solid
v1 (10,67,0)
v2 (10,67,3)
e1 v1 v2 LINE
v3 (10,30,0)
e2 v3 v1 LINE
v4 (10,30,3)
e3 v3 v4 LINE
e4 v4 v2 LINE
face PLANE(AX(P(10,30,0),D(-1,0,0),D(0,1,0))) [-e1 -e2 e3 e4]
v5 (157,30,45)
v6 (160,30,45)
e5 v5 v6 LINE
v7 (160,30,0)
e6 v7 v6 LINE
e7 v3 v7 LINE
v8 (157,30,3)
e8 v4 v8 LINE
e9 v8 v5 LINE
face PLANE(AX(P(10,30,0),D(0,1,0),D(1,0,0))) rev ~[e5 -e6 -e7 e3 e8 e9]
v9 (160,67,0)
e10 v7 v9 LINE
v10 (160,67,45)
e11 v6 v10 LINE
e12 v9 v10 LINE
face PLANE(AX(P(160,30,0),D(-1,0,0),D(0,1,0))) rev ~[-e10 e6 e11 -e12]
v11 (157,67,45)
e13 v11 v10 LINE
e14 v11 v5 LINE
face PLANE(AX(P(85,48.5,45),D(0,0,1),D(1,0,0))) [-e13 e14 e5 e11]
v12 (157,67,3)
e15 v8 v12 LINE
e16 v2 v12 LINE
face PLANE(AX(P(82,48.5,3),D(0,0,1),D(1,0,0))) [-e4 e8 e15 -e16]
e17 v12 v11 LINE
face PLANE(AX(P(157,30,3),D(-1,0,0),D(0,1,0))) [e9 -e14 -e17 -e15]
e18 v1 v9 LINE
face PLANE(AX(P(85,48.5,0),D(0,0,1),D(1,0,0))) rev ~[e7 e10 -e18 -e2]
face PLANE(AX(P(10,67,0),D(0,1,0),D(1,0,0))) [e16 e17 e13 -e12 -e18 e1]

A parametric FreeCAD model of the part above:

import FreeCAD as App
import Part
import Sketcher

V = App.Vector
Q = App.Units.Quantity

doc = App.newDocument("Part")
params = doc.addObject("Spreadsheet::Sheet", "Params")
for row, (alias, value) in enumerate([
    ("sketch1_width", "150 mm"),
    ("sketch1_height", "37 mm"),
    ("pad1_length", "45 mm"),
    ("sketch2_width", "150 mm"),
    ("sketch2_height", "37 mm"),
    ("pad2_length", "45 mm"),
], start=1):
    params.set(f"A{row}", alias)
    params.set(f"B{row}", "=" + value)
    params.setAlias(f"B{row}", alias)

body = doc.addObject("PartDesign::Body", "Body")

# Sketch on XY plane
sketch1 = body.newObject("Sketcher::SketchObject", "Sketch")
sketch1.AttachmentSupport = (doc.getObject("XY_Plane"), [""])
sketch1.MapMode = "FlatFace"
sketch1.AttachmentOffset = App.Placement(V(0, 0, 3), App.Rotation())
sketch1.addGeometry(Part.LineSegment(V(-3, 37, 0), V(-3, 0, 0)), False)
sketch1.addGeometry(Part.LineSegment(V(-3, 0, 0), V(147, 0, 0)), False)
sketch1.addGeometry(Part.LineSegment(V(147, 0, 0), V(147, 37, 0)), False)
sketch1.addGeometry(Part.LineSegment(V(147, 37, 0), V(-3, 37, 0)), False)
sketch1.addConstraint(Sketcher.Constraint("Coincident", 0, 2, 1, 1))
sketch1.addConstraint(Sketcher.Constraint("Coincident", 1, 2, 2, 1))
sketch1.addConstraint(Sketcher.Constraint("Coincident", 2, 2, 3, 1))
sketch1.addConstraint(Sketcher.Constraint("Coincident", 3, 2, 0, 1))
sketch1.addConstraint(Sketcher.Constraint("Vertical", 0))
sketch1.addConstraint(Sketcher.Constraint("Horizontal", 1))
sketch1.addConstraint(Sketcher.Constraint("Vertical", 2))
sketch1.addConstraint(Sketcher.Constraint("Horizontal", 3))
sketch1.addConstraint(Sketcher.Constraint("PointOnObject", 0, 2, -1))
sketch1.addConstraint(Sketcher.Constraint("DistanceX", 1, 1, 1, 2, Q("150 mm")))
sketch1.addConstraint(Sketcher.Constraint("DistanceY", 0, 2, 0, 1, Q("37 mm")))
sketch1.addConstraint(Sketcher.Constraint("DistanceX", 0, 2, -1, 1, Q("3 mm")))
sketch1.setExpression("Constraints[9]", "Params.sketch1_width")
sketch1.setExpression("Constraints[10]", "Params.sketch1_height")
pad1 = body.newObject("PartDesign::Pad", "Pad")
pad1.Profile = sketch1
pad1.setExpression("Length", "Params.pad1_length")
body2 = doc.addObject("PartDesign::Body", "Body001")

# Sketch on XY plane
sketch2 = body2.newObject("Sketcher::SketchObject", "Sketch001")
sketch2.AttachmentSupport = (doc.getObject("XY_Plane001"), [""])
sketch2.MapMode = "FlatFace"
sketch2.addGeometry(Part.LineSegment(V(0, 37, 0), V(0, 0, 0)), False)
sketch2.addGeometry(Part.LineSegment(V(0, 0, 0), V(150, 0, 0)), False)
sketch2.addGeometry(Part.LineSegment(V(150, 0, 0), V(150, 37, 0)), False)
sketch2.addGeometry(Part.LineSegment(V(150, 37, 0), V(0, 37, 0)), False)
sketch2.addConstraint(Sketcher.Constraint("Coincident", 0, 2, 1, 1))
sketch2.addConstraint(Sketcher.Constraint("Coincident", 1, 2, 2, 1))
sketch2.addConstraint(Sketcher.Constraint("Coincident", 2, 2, 3, 1))
sketch2.addConstraint(Sketcher.Constraint("Coincident", 3, 2, 0, 1))
sketch2.addConstraint(Sketcher.Constraint("Vertical", 0))
sketch2.addConstraint(Sketcher.Constraint("Horizontal", 1))
sketch2.addConstraint(Sketcher.Constraint("Vertical", 2))
sketch2.addConstraint(Sketcher.Constraint("Horizontal", 3))
sketch2.addConstraint(Sketcher.Constraint("Coincident", 0, 2, -1, 1))
sketch2.addConstraint(Sketcher.Constraint("DistanceX", 1, 1, 1, 2, Q("150 mm")))
sketch2.addConstraint(Sketcher.Constraint("DistanceY", 0, 2, 0, 1, Q("37 mm")))
sketch2.setExpression("Constraints[9]", "Params.sketch2_width")
sketch2.setExpression("Constraints[10]", "Params.sketch2_height")
pad2 = body2.newObject("PartDesign::Pad", "Pad001")
pad2.Profile = sketch2
pad2.setExpression("Length", "Params.pad2_length")
doc.recompute()

boolean = body2.newObject("PartDesign::Boolean", "Boolean")
boolean.Type = "Cut"
boolean.addObjects([body])
body3 = doc.addObject("PartDesign::Body", "Body002")
doc.recompute()

body2.Placement = App.Placement(V(10, 30, 0), App.Rotation(V(0, 0, 1), 0))
boolean2 = body3.newObject("PartDesign::Boolean", "Boolean001")
boolean2.Type = "Fuse"
boolean2.addObjects([body2])

doc.recompute()
